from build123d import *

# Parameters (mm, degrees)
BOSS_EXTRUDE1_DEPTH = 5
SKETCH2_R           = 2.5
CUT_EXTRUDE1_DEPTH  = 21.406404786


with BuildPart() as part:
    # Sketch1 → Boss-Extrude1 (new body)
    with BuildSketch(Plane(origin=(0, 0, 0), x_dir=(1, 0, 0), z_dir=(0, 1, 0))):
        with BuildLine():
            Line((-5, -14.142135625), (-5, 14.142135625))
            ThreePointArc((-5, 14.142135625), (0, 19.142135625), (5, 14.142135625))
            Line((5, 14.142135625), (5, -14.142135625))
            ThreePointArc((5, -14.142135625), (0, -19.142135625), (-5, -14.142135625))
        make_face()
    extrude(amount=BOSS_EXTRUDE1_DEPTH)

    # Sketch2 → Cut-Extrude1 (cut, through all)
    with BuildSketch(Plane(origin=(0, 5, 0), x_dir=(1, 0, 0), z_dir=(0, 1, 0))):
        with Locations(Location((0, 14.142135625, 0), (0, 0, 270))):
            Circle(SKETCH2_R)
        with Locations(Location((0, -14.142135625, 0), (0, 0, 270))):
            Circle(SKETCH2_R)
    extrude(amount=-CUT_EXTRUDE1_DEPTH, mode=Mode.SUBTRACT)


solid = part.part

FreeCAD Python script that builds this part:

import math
import FreeCAD as App
import Part
import Sketcher

doc = App.newDocument("Part")
params = doc.addObject("Spreadsheet::Sheet", "Params")
for row, (alias, value) in enumerate([
    ("sketch1_radius", "5 mm"),
    ("pad1_length", "5 mm"),
    ("sketch2_diameter", "5 mm"),
], start=1):
    params.set(f"A{row}", alias)
    params.set(f"B{row}", "=" + value)
    params.setAlias(f"B{row}", alias)

body = doc.addObject("PartDesign::Body", "Body")

# Sketch on XZ plane
sketch1 = body.newObject("Sketcher::SketchObject", "Sketch")
sketch1.AttachmentSupport = (doc.getObject("XZ_Plane"), [""])
sketch1.MapMode = "FlatFace"
sketch1.addGeometry(Part.LineSegment(App.Vector(-5, -14.142136, 0), App.Vector(-5, 14.142136, 0)), False)
sketch1.addGeometry(Part.ArcOfCircle(Part.Circle(App.Vector(0, 14.142136, 0), App.Vector(0, 0, 1), 5), math.radians(0), math.radians(180)), False)
sketch1.addGeometry(Part.LineSegment(App.Vector(5, 14.142136, 0), App.Vector(5, -14.142136, 0)), False)
sketch1.addGeometry(Part.ArcOfCircle(Part.Circle(App.Vector(0, -14.142136, 0), App.Vector(0, 0, 1), 5), math.radians(180), math.radians(360)), False)
sketch1.addConstraint(Sketcher.Constraint("Tangent", 0, 2, 1, 2))
sketch1.addConstraint(Sketcher.Constraint("Tangent", 1, 1, 2, 1))
sketch1.addConstraint(Sketcher.Constraint("Tangent", 2, 2, 3, 2))
sketch1.addConstraint(Sketcher.Constraint("Tangent", 3, 1, 0, 1))
sketch1.addConstraint(Sketcher.Constraint("Vertical", 0))
sketch1.addConstraint(Sketcher.Constraint("Vertical", 2))
sketch1.addConstraint(Sketcher.Constraint("Symmetric", 1, 3, 3, 3, -1, 1))
sketch1.addConstraint(Sketcher.Constraint("Radius", 1, 5.0))
sketch1.addConstraint(Sketcher.Constraint("DistanceY", 0, 1, 0, 2, 28.284271))
sketch1.setExpression("Constraints[7]", "Params.sketch1_radius")
pad1 = body.newObject("PartDesign::Pad", "Pad")
pad1.Profile = sketch1
pad1.setExpression("Length", "Params.pad1_length")
pad1.Reversed = True

# Sketch on XZ plane
sketch2 = body.newObject("Sketcher::SketchObject", "Sketch001")
sketch2.AttachmentSupport = (doc.getObject("XZ_Plane"), [""])
sketch2.MapMode = "FlatFace"
sketch2.AttachmentOffset = App.Placement(App.Vector(0, 0, -5), App.Rotation())
sketch2.addGeometry(Part.Circle(App.Vector(0, -14.142136, 0), App.Vector(0, 0, 1), 2.5), False)
sketch2.addGeometry(Part.Circle(App.Vector(0, 14.142136, 0), App.Vector(0, 0, 1), 2.5), False)
sketch2.addConstraint(Sketcher.Constraint("Equal", 0, 1))
sketch2.addConstraint(Sketcher.Constraint("Symmetric", 0, 3, 1, 3, -1, 1))
sketch2.addConstraint(Sketcher.Constraint("PointOnObject", 0, 3, -2))
sketch2.addConstraint(Sketcher.Constraint("Diameter", 0, 5.0))
sketch2.addConstraint(Sketcher.Constraint("DistanceY", 0, 3, 1, 3, 28.284271))
sketch2.setExpression("Constraints[3]", "Params.sketch2_diameter")
pocket1 = body.newObject("PartDesign::Pocket", "Pocket")
pocket1.Profile = sketch2
pocket1.Type = "ThroughAll"
pocket1.Reversed = True

doc.recompute()
